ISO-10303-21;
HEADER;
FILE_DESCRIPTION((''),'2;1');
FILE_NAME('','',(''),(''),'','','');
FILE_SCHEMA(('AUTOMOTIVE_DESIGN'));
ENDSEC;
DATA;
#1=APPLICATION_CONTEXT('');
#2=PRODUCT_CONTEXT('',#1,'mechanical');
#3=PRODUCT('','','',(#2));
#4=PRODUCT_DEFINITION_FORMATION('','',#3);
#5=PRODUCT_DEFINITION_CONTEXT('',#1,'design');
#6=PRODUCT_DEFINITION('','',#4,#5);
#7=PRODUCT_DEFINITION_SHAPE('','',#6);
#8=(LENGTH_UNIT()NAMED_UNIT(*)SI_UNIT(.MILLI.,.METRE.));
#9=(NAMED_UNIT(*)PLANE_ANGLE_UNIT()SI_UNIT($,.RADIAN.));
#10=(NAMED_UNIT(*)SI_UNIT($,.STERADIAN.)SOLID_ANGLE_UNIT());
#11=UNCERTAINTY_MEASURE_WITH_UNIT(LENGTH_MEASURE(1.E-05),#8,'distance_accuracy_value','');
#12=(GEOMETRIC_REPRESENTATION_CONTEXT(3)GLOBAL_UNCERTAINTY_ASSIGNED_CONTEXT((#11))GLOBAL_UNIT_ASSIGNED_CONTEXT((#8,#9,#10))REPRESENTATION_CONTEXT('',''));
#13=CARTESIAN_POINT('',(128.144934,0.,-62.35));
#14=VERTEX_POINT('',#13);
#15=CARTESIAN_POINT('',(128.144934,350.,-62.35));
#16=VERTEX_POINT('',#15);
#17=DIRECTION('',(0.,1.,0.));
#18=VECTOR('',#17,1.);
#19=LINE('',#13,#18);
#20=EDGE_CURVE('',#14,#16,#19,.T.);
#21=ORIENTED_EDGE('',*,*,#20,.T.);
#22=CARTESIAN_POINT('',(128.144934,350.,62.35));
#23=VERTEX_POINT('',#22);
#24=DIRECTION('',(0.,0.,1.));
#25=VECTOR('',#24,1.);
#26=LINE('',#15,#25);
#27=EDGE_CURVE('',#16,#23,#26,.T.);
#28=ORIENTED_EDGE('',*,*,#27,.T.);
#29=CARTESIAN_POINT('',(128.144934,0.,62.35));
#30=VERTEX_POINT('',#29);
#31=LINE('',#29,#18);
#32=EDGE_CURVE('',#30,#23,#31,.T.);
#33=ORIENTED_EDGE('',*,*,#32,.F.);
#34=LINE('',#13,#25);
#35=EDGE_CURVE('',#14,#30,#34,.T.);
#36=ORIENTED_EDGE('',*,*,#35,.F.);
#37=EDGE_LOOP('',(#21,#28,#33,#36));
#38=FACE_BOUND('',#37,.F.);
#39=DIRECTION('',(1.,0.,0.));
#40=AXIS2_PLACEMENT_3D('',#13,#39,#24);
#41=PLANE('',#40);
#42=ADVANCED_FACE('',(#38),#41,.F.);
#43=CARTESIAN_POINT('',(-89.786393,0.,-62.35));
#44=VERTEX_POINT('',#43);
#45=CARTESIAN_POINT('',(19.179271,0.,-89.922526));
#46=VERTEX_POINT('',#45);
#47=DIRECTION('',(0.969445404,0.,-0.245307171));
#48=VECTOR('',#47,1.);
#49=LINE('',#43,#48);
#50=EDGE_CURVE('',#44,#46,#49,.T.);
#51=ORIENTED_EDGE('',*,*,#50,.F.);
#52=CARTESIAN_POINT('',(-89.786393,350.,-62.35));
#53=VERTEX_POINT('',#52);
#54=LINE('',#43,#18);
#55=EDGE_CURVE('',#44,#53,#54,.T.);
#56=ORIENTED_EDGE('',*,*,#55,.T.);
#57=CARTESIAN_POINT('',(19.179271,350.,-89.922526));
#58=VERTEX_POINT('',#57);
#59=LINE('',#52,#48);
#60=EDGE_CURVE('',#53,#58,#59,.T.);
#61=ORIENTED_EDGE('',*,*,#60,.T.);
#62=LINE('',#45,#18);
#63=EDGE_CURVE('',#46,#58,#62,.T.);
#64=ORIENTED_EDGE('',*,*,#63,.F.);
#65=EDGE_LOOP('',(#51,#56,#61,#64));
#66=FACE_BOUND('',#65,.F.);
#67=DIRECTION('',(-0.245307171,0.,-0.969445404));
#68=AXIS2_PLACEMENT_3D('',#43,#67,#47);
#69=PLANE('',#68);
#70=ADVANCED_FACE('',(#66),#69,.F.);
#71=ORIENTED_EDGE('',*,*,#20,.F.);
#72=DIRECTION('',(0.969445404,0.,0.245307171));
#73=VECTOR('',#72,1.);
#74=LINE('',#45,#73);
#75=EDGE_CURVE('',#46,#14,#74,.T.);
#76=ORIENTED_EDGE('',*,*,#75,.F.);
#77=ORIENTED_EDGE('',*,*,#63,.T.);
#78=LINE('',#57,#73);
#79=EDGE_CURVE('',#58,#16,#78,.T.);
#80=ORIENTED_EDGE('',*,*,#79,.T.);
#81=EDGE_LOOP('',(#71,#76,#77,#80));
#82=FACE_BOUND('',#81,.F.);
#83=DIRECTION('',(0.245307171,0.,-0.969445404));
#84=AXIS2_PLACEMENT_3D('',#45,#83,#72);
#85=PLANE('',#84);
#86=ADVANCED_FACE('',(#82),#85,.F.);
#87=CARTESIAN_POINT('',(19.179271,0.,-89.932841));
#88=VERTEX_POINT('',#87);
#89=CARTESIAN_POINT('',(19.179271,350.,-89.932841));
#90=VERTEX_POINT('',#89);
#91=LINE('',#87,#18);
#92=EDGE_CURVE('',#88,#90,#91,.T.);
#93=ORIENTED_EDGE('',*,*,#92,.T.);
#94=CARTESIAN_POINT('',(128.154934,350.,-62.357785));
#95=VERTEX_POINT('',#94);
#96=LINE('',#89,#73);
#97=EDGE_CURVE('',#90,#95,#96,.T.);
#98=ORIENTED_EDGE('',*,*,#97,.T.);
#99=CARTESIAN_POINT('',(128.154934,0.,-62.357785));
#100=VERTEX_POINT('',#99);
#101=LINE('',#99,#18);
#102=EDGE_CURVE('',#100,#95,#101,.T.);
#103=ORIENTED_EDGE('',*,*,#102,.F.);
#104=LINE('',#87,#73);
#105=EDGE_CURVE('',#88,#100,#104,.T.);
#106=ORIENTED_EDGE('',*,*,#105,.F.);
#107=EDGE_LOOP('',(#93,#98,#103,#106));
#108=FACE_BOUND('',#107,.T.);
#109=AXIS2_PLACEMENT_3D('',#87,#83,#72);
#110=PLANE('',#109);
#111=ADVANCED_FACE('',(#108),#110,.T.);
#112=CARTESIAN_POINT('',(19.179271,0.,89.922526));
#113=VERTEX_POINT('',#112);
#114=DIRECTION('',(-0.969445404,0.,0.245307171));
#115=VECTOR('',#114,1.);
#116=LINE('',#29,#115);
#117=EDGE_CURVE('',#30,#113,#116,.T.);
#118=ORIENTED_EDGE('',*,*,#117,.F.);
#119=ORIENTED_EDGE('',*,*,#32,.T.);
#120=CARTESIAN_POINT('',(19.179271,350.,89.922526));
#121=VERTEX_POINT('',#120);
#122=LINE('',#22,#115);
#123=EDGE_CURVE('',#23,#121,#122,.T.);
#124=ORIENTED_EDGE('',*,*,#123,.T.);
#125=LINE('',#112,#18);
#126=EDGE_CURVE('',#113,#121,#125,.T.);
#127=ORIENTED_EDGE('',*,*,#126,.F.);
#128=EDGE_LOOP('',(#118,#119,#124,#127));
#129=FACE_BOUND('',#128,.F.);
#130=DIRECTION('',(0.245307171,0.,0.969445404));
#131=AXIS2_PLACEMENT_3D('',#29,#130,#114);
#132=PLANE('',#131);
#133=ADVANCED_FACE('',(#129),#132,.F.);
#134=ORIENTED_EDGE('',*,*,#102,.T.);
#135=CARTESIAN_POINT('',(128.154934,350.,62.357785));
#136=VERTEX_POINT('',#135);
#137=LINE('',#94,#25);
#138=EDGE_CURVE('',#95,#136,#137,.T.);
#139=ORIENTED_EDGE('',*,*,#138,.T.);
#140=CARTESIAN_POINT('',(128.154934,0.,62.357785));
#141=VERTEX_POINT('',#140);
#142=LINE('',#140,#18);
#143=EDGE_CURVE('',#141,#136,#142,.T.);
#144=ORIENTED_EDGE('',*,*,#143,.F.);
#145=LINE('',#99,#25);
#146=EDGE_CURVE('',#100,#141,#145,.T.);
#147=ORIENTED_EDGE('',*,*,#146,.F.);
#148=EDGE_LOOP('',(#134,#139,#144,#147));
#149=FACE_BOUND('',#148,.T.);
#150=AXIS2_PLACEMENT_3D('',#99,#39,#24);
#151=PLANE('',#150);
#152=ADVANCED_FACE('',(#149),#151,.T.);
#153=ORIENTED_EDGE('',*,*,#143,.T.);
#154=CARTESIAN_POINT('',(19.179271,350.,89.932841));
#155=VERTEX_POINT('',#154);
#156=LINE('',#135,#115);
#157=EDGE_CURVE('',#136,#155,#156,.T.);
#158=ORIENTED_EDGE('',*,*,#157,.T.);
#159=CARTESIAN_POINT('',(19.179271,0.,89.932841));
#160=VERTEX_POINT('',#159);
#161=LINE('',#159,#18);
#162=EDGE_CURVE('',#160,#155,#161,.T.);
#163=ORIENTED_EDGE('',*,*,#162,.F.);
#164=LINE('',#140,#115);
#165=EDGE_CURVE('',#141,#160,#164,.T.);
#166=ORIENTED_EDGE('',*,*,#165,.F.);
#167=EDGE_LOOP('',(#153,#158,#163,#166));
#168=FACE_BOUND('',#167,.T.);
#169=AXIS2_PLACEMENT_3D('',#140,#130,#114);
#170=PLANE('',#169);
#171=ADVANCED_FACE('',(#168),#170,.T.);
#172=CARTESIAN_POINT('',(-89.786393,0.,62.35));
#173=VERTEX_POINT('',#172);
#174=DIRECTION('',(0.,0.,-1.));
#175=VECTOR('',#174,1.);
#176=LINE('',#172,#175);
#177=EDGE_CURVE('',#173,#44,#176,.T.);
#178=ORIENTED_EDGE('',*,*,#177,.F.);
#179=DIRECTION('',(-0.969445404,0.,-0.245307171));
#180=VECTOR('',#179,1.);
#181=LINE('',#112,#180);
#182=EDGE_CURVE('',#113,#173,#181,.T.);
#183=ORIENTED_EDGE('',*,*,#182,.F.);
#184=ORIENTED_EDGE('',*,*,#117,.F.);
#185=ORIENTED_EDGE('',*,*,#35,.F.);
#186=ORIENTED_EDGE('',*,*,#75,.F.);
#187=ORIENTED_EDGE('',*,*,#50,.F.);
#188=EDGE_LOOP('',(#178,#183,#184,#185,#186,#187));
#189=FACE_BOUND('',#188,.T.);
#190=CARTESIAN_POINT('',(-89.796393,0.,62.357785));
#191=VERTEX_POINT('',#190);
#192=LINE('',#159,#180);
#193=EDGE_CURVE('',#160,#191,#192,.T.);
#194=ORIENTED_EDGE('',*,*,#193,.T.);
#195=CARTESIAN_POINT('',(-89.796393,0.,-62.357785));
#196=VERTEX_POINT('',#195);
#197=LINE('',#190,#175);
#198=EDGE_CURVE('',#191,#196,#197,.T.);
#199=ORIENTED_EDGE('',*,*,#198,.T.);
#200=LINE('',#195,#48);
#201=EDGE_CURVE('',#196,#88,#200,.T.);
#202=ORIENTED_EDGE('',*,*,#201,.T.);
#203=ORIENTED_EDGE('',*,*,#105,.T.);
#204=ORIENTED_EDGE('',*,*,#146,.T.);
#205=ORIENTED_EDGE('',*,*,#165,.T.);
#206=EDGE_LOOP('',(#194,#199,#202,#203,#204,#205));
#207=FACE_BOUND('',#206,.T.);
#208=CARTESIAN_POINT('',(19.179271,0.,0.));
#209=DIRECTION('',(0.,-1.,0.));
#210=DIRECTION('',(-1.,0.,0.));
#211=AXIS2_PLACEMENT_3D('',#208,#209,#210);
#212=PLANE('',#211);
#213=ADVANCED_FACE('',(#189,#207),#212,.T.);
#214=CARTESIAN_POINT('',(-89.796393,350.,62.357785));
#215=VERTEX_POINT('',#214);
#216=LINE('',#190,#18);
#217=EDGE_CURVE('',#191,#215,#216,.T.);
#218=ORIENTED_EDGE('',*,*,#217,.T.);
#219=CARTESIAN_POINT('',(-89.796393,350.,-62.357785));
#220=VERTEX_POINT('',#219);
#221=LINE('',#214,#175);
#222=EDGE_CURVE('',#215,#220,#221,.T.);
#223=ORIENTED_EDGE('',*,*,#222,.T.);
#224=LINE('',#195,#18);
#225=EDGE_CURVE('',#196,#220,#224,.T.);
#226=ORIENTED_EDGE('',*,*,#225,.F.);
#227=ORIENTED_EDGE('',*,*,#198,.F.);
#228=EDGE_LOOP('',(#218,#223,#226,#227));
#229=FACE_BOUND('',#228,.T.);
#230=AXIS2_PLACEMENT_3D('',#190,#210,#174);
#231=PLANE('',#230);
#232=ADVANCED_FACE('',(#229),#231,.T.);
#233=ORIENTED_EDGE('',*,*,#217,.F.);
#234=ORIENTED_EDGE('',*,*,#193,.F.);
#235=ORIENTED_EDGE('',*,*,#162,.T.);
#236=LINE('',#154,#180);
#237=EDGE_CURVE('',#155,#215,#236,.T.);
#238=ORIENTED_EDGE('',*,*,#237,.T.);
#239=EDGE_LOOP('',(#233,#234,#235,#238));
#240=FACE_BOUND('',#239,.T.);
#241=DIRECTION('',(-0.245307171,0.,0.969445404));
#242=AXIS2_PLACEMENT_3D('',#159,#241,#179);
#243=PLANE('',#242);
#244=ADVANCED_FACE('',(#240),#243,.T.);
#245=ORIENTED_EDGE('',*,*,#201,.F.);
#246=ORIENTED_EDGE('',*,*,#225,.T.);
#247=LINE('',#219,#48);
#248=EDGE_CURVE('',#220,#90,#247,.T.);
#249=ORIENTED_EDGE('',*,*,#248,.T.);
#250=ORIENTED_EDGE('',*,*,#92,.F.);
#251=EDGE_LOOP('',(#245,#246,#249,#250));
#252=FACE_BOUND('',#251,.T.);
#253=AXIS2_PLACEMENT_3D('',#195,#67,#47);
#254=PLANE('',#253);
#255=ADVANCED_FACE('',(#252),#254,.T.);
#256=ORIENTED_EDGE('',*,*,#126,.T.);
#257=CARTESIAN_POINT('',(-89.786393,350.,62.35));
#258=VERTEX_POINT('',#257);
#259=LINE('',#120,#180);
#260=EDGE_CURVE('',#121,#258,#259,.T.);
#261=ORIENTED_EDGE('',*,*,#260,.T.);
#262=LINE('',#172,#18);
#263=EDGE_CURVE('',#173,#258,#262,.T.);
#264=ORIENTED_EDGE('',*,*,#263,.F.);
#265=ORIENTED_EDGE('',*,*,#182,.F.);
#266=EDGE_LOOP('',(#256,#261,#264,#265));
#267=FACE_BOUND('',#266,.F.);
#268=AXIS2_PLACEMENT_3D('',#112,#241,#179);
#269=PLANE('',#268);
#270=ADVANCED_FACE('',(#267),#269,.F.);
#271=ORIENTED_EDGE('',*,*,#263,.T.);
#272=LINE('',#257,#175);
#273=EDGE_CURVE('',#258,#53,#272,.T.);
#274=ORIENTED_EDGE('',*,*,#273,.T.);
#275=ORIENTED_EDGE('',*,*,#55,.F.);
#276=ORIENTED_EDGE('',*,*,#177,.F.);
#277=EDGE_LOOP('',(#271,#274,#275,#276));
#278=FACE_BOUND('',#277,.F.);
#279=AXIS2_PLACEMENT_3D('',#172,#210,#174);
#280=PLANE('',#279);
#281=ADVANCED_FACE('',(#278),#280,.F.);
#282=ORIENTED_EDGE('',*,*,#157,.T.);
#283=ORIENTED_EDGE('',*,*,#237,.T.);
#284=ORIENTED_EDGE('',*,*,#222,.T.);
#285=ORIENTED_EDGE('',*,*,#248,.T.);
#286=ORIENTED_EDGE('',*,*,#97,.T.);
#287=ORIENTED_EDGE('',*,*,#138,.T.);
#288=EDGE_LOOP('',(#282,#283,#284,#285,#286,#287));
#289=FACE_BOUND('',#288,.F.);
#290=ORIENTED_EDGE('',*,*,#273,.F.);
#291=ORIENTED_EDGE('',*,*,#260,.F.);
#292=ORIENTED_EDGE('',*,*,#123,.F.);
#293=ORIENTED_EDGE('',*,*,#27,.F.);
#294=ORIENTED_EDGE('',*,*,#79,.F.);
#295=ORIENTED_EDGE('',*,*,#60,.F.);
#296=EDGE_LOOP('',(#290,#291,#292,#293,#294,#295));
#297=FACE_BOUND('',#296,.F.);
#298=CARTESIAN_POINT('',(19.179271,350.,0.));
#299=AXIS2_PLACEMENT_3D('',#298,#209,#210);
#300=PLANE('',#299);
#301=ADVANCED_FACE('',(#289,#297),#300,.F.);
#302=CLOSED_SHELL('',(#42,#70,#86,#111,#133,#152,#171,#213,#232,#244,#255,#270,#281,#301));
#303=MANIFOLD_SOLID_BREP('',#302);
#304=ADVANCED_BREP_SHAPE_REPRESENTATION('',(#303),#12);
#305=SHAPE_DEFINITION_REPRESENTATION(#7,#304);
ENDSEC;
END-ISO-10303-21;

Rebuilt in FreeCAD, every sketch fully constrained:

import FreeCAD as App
import Part
import Sketcher

V = App.Vector
Q = App.Units.Quantity

doc = App.newDocument("Part")
params = doc.addObject("Spreadsheet::Sheet", "Params")
for row, (alias, value) in enumerate([
    ("sketch1_height", "124.7 mm"),
    ("sketch1_length", "112.4 mm"),
    ("pad1_length", "350 mm"),
], start=1):
    params.set(f"A{row}", alias)
    params.set(f"B{row}", "=" + value)
    params.setAlias(f"B{row}", alias)

body = doc.addObject("PartDesign::Body", "Body")

sketch1 = body.newObject("Sketcher::SketchObject", "Sketch")
sketch1.AttachmentSupport = (doc.getObject("XZ_Plane"), [""])
sketch1.MapMode = "FlatFace"
sketch1.addGeometry(Part.LineSegment(V(128.154934, 62.357785, 0), V(128.154934, -62.357785, 0)), False)
sketch1.addGeometry(Part.LineSegment(V(128.154934, -62.357785, 0), V(19.179271, -89.932841, 0)), False)
sketch1.addGeometry(Part.LineSegment(V(19.179271, -89.932841, 0), V(-89.796393, -62.357785, 0)), False)
sketch1.addGeometry(Part.LineSegment(V(-89.796393, -62.357785, 0), V(-89.796393, 62.357785, 0)), False)
sketch1.addGeometry(Part.LineSegment(V(-89.796393, 62.357785, 0), V(19.179271, 89.932841, 0)), False)
sketch1.addGeometry(Part.LineSegment(V(19.179271, 89.932841, 0), V(128.154934, 62.357785, 0)), False)
sketch1.addGeometry(Part.LineSegment(V(128.144934, -62.35, 0), V(128.144934, 62.35, 0)), False)
sketch1.addGeometry(Part.LineSegment(V(128.144934, 62.35, 0), V(19.179271, 89.922526, 0)), False)
sketch1.addGeometry(Part.LineSegment(V(19.179271, 89.922526, 0), V(-89.786393, 62.35, 0)), False)
sketch1.addGeometry(Part.LineSegment(V(-89.786393, 62.35, 0), V(-89.786393, -62.35, 0)), False)
sketch1.addGeometry(Part.LineSegment(V(-89.786393, -62.35, 0), V(19.179271, -89.922526, 0)), False)
sketch1.addGeometry(Part.LineSegment(V(19.179271, -89.922526, 0), V(128.144934, -62.35, 0)), False)
sketch1.addConstraint(Sketcher.Constraint("Coincident", 0, 2, 1, 1))
sketch1.addConstraint(Sketcher.Constraint("Coincident", 1, 2, 2, 1))
sketch1.addConstraint(Sketcher.Constraint("Coincident", 2, 2, 3, 1))
sketch1.addConstraint(Sketcher.Constraint("Coincident", 3, 2, 4, 1))
sketch1.addConstraint(Sketcher.Constraint("Coincident", 4, 2, 5, 1))
sketch1.addConstraint(Sketcher.Constraint("Coincident", 5, 2, 0, 1))
sketch1.addConstraint(Sketcher.Constraint("Coincident", 6, 2, 7, 1))
sketch1.addConstraint(Sketcher.Constraint("Coincident", 7, 2, 8, 1))
sketch1.addConstraint(Sketcher.Constraint("Coincident", 8, 2, 9, 1))
sketch1.addConstraint(Sketcher.Constraint("Coincident", 9, 2, 10, 1))
sketch1.addConstraint(Sketcher.Constraint("Coincident", 10, 2, 11, 1))
sketch1.addConstraint(Sketcher.Constraint("Coincident", 11, 2, 6, 1))
sketch1.addConstraint(Sketcher.Constraint("Vertical", 0))
sketch1.addConstraint(Sketcher.Constraint("Vertical", 3))
sketch1.addConstraint(Sketcher.Constraint("Vertical", 6))
sketch1.addConstraint(Sketcher.Constraint("Vertical", 9))
sketch1.addConstraint(Sketcher.Constraint("Symmetric", 1, 2, 4, 2, -1))
sketch1.addConstraint(Sketcher.Constraint("Symmetric", 7, 2, 10, 2, -1))
sketch1.addConstraint(Sketcher.Constraint("Parallel", 1, 4))
sketch1.addConstraint(Sketcher.Constraint("Parallel", 2, 5))
sketch1.addConstraint(Sketcher.Constraint("Parallel", 5, 7))
sketch1.addConstraint(Sketcher.Constraint("Parallel", 4, 8))
sketch1.addConstraint(Sketcher.Constraint("Parallel", 7, 10))
sketch1.addConstraint(Sketcher.Constraint("Parallel", 8, 11))
sketch1.addConstraint(Sketcher.Constraint("Horizontal", 0, 2, 2, 2))
sketch1.addConstraint(Sketcher.Constraint("Horizontal", 3, 2, 5, 2))
sketch1.addConstraint(Sketcher.Constraint("Horizontal", 6, 2, 8, 2))
sketch1.addConstraint(Sketcher.Constraint("Vertical", 4, 2, 7, 2))
sketch1.addConstraint(Sketcher.Constraint("DistanceY", 6, 1, 6, 2, 124.7))
sketch1.addConstraint(Sketcher.Constraint("Angle", 1, Q("-165.800013 deg")))
sketch1.addConstraint(Sketcher.Constraint("Distance", 7, 112.4))
sketch1.addConstraint(Sketcher.Constraint("DistanceX", 6, 2, 5, 2, 0.01))
sketch1.addConstraint(Sketcher.Constraint("DistanceY", 0, 2, 0, 1, 124.71557))
sketch1.addConstraint(Sketcher.Constraint("DistanceX", -1, 1, 1, 2, 19.179271))
sketch1.setExpression("Constraints[28]", "Params.sketch1_height")
sketch1.setExpression("Constraints[30]", "Params.sketch1_length")
pad1 = body.newObject("PartDesign::Pad", "Pad")
pad1.Profile = sketch1
pad1.setExpression("Length", "Params.pad1_length")
pad1.Reversed = True

doc.recompute()
